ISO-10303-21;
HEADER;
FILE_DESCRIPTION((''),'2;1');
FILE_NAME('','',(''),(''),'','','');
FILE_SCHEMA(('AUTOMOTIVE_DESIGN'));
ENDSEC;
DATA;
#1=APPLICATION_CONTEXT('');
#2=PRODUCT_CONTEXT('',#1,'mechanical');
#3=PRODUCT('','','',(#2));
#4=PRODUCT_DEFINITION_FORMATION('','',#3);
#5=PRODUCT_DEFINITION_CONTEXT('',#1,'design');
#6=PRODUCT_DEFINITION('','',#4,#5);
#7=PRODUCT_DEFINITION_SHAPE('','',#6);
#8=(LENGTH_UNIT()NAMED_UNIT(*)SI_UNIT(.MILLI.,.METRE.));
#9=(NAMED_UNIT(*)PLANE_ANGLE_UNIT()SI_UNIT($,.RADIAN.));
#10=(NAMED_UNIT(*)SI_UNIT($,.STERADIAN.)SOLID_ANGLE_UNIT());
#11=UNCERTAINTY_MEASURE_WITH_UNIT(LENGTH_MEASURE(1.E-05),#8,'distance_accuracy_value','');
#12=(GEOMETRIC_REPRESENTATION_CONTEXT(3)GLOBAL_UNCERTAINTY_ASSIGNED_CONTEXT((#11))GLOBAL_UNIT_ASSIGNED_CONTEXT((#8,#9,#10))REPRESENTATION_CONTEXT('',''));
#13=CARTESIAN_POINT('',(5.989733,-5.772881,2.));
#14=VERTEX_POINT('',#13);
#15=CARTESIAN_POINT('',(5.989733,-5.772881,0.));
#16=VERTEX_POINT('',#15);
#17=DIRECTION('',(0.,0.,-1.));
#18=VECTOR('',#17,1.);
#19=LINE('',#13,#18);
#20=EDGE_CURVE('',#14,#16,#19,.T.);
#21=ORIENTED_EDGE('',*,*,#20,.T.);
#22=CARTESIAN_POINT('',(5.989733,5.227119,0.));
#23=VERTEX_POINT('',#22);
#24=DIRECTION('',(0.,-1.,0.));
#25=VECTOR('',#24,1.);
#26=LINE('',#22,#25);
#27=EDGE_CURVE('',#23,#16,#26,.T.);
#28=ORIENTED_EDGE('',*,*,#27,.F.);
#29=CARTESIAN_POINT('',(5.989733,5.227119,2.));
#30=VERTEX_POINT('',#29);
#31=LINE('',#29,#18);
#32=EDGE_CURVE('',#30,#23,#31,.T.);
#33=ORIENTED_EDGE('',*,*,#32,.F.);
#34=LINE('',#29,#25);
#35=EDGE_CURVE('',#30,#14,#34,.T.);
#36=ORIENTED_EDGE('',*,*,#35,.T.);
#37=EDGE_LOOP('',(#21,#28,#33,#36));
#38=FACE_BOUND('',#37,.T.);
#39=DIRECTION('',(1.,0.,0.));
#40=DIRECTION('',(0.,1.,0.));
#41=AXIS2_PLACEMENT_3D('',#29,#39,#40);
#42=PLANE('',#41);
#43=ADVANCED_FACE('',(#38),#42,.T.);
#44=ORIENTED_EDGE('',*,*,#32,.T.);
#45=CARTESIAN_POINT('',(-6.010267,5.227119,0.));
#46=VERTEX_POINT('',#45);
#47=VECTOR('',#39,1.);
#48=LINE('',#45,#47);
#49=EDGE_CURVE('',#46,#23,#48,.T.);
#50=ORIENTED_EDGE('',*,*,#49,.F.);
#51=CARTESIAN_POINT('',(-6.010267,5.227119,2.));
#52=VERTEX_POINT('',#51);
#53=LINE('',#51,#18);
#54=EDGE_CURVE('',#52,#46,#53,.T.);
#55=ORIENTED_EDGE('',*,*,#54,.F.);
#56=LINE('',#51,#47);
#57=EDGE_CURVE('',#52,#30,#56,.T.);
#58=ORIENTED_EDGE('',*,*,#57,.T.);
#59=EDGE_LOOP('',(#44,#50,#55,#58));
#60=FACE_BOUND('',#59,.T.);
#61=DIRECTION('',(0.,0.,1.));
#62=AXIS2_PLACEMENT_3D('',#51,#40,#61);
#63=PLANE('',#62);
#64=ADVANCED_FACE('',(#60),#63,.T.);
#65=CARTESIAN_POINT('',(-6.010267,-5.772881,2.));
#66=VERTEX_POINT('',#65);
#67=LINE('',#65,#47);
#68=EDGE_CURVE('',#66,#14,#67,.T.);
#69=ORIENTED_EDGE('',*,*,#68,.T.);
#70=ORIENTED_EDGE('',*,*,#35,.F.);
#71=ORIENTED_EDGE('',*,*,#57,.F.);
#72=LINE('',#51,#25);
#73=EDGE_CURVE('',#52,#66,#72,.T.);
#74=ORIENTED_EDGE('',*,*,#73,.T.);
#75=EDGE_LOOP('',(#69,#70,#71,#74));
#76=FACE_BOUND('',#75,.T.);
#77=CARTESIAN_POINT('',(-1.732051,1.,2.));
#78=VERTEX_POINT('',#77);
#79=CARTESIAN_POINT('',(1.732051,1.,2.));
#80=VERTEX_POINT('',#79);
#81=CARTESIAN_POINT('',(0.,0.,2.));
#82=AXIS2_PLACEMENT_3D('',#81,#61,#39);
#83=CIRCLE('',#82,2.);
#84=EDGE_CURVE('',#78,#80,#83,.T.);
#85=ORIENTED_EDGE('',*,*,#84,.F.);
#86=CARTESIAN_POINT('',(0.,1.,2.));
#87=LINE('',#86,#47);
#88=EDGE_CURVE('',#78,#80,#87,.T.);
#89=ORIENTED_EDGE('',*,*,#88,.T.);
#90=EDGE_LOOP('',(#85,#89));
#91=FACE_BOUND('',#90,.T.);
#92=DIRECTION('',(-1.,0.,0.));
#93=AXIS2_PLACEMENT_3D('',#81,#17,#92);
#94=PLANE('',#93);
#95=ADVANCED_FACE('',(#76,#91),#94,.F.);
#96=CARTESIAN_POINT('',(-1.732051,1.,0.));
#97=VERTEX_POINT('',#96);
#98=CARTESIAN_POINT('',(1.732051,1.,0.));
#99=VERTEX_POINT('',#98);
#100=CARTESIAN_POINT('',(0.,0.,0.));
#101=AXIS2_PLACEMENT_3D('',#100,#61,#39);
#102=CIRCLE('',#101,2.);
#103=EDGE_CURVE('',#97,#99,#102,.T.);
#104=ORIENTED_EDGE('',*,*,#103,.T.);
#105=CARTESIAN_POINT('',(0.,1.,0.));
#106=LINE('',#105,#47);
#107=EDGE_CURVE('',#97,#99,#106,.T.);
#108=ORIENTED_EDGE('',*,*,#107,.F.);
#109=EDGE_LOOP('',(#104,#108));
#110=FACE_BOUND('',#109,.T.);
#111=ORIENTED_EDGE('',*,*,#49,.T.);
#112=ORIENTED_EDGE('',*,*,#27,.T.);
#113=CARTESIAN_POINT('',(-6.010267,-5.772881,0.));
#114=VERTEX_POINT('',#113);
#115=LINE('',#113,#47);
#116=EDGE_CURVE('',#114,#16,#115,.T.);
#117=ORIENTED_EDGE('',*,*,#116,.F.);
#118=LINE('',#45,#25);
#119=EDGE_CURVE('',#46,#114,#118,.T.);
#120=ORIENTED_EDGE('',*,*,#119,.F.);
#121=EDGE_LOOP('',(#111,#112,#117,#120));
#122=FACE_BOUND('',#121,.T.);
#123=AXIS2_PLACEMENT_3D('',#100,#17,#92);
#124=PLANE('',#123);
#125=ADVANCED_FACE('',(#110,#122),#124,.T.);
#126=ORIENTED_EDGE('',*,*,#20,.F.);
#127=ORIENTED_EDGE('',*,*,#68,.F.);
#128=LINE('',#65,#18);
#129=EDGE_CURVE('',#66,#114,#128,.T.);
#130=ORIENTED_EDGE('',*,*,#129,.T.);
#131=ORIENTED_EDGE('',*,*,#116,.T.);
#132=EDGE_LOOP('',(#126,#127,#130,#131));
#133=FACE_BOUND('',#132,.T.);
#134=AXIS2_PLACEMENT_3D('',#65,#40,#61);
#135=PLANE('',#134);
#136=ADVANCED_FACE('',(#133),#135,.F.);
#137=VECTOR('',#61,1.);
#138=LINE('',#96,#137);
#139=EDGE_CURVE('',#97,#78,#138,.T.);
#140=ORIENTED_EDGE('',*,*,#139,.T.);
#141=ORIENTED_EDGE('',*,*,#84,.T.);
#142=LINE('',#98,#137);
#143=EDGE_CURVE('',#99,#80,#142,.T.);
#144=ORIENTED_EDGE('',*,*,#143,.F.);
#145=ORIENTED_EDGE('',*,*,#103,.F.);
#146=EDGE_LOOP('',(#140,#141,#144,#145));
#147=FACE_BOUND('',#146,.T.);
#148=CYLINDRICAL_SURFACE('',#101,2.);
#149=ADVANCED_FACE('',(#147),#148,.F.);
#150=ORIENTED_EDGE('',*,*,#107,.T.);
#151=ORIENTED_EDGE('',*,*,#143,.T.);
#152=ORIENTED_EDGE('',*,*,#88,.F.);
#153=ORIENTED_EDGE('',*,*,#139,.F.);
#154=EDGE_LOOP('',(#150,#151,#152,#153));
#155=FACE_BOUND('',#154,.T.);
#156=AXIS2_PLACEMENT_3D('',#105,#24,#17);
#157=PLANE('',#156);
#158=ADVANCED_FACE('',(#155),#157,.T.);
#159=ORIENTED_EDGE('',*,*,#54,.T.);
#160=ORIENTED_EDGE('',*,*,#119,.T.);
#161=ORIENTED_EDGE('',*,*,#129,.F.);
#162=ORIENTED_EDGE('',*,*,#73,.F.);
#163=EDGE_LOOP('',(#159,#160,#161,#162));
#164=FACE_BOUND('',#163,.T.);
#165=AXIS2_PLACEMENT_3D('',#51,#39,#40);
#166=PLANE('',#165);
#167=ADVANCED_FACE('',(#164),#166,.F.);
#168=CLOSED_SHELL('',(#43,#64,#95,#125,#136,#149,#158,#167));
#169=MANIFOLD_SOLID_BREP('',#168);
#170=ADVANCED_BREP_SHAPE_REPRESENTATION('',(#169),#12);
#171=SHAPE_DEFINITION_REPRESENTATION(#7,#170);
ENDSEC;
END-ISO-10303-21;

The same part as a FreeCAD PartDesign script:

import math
import FreeCAD as App
import Part
import Sketcher

V = App.Vector


def add_polygon(sketch, points):
    """Adds a closed chain of lines whose ends are joined by coincident constraints."""
    first, n = sketch.GeometryCount, len(points)
    for a, b in zip(points, points[1:] + points[:1]):
        sketch.addGeometry(Part.LineSegment(App.Vector(*a, 0), App.Vector(*b, 0)), False)
    for i in range(n):
        sketch.addConstraint(Sketcher.Constraint("Coincident", first + i, 2, first + (i + 1) % n, 1))

doc = App.newDocument("Part")
body = doc.addObject("PartDesign::Body", "Body")

# Sketch on XY plane
sketch1 = doc.addObject("Sketcher::SketchObject", "Sketch")
body.addObject(sketch1)
sketch1.AttachmentSupport = (doc.XY_Plane, [""])
sketch1.MapMode = "FlatFace"
add_polygon(sketch1, [(-6.010267, 5.227119), (-6.010267, -5.772881), (5.989733, -5.772881), (5.989733, 5.227119)])  # lines 0-3
sketch1.addConstraint([
    Sketcher.Constraint("Vertical", 0),
    Sketcher.Constraint("Horizontal", 1),
    Sketcher.Constraint("Vertical", 2),
    Sketcher.Constraint("Horizontal", 3),
    Sketcher.Constraint("DistanceX", 1, 1, 1, 2, 12.0),
    Sketcher.Constraint("DistanceY", 0, 2, 0, 1, 11.0),
    Sketcher.Constraint("DistanceY", 0, 2, -1, 1, 5.772881),
    Sketcher.Constraint("DistanceX", 0, 2, -1, 1, 6.010267),
])
pad1 = doc.addObject("PartDesign::Pad", "Pad")
body.addObject(pad1)
pad1.Profile = sketch1
pad1.Length = 2

# Sketch on XY plane
sketch2 = doc.addObject("Sketcher::SketchObject", "Sketch001")
body.addObject(sketch2)
sketch2.AttachmentSupport = (doc.XY_Plane, [""])
sketch2.MapMode = "FlatFace"
sketch2.AttachmentOffset = App.Placement(V(0, 0, 2), App.Rotation())
sketch2.addGeometry([
    Part.ArcOfCircle(Part.Circle(V(0, 0, 0), V(0, 0, 1), 2), math.radians(150), math.radians(360)),
    Part.ArcOfCircle(Part.Circle(V(0, 0, 0), V(0, 0, 1), 2), math.radians(0), math.radians(30)),
    Part.LineSegment(V(1.732051, 1, 0), V(-1.732051, 1, 0)),
], False)
sketch2.addConstraint([
    Sketcher.Constraint("Tangent", 0, 2, 1, 1),
    Sketcher.Constraint("Coincident", 1, 2, 2, 1),
    Sketcher.Constraint("Coincident", 2, 2, 0, 1),
    Sketcher.Constraint("Horizontal", 2),
    Sketcher.Constraint("Coincident", 0, 3, -1, 1),
    Sketcher.Constraint("Equal", 0, 1),
    Sketcher.Constraint("PointOnObject", 0, 2, -1),
    Sketcher.Constraint("Radius", 0, 2.0),
    Sketcher.Constraint("DistanceY", -1, 1, 1, 2, 1.0),
])
pocket1 = doc.addObject("PartDesign::Pocket", "Pocket")
body.addObject(pocket1)
pocket1.Profile = sketch2
pocket1.Length = 2

doc.recompute()
